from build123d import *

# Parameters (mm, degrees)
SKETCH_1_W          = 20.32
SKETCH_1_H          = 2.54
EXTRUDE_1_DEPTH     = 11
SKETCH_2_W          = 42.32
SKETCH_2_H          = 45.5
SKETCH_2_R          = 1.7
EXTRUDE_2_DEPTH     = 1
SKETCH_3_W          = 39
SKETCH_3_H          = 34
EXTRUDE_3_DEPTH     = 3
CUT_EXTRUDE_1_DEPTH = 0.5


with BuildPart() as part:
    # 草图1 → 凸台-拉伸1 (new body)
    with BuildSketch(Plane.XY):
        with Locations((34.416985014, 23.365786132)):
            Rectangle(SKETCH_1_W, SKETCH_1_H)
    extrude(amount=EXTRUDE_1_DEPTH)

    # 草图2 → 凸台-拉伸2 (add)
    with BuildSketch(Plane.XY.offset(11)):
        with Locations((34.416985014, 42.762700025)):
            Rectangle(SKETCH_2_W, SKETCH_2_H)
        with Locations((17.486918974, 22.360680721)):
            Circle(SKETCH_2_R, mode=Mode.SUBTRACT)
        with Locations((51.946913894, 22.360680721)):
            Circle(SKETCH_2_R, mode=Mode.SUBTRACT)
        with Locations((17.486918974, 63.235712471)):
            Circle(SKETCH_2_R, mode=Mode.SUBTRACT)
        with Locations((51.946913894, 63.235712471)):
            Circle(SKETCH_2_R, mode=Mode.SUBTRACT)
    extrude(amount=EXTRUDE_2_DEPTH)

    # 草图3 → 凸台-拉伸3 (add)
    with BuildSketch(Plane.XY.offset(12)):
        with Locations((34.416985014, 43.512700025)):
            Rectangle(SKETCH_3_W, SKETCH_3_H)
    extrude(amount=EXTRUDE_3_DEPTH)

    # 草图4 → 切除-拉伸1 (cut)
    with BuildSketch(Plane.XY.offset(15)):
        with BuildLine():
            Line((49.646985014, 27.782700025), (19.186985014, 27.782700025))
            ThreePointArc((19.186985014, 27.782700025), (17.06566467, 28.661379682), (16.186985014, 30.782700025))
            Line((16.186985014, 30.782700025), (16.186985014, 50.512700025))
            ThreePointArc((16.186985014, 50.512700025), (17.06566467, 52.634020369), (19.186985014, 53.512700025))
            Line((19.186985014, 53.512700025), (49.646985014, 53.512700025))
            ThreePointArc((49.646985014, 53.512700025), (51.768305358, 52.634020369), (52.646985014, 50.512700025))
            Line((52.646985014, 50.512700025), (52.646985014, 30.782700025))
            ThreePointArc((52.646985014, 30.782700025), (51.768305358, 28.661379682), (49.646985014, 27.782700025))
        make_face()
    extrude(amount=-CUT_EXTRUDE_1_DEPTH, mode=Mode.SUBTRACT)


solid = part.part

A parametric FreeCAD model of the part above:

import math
import FreeCAD as App
import Part
import Sketcher

V = App.Vector


def add_polygon(sketch, points):
    """Adds a closed chain of lines whose ends are joined by coincident constraints."""
    first, n = sketch.GeometryCount, len(points)
    for a, b in zip(points, points[1:] + points[:1]):
        sketch.addGeometry(Part.LineSegment(App.Vector(*a, 0), App.Vector(*b, 0)), False)
    for i in range(n):
        sketch.addConstraint(Sketcher.Constraint("Coincident", first + i, 2, first + (i + 1) % n, 1))

doc = App.newDocument("Part")
body = doc.addObject("PartDesign::Body", "Body")

# Sketch on XY plane
sketch1 = body.newObject("Sketcher::SketchObject", "Sketch")
sketch1.AttachmentSupport = (doc.getObject("XY_Plane"), [""])
sketch1.MapMode = "FlatFace"
add_polygon(sketch1, [(24.3, 24.6), (24.3, 22.1), (44.6, 22.1), (44.6, 24.6)])  # lines 0-3
sketch1.addConstraint([
    Sketcher.Constraint("Vertical", 0),
    Sketcher.Constraint("Horizontal", 1),
    Sketcher.Constraint("Vertical", 2),
    Sketcher.Constraint("Horizontal", 3),
    Sketcher.Constraint("DistanceX", 1, 1, 1, 2, 20.32),
    Sketcher.Constraint("DistanceY", 0, 2, 0, 1, 2.54),
    Sketcher.Constraint("DistanceX", -1, 1, 0, 2, 24.256985),
    Sketcher.Constraint("DistanceY", -1, 1, 0, 2, 22.095786),
])
pad1 = body.newObject("PartDesign::Pad", "Pad")
pad1.Profile = sketch1
pad1.Length = 11

# Sketch on XY plane
sketch2 = body.newObject("Sketcher::SketchObject", "Sketch001")
sketch2.AttachmentSupport = (doc.getObject("XY_Plane"), [""])
sketch2.MapMode = "FlatFace"
sketch2.AttachmentOffset = App.Placement(V(0, 0, 11), App.Rotation())
add_polygon(sketch2, [(13.3, 65.5), (13.3, 20), (55.6, 20), (55.6, 65.5)])  # lines 0-3
sketch2.addGeometry(Part.Circle(V(17.5, 22.4, 0), V(0, 0, 1), 1.7), False)  # 4
sketch2.addGeometry(Part.Circle(V(51.9, 22.4, 0), V(0, 0, 1), 1.7), False)  # 5
sketch2.addGeometry(Part.Circle(V(17.5, 63.2, 0), V(0, 0, 1), 1.7), False)  # 6
sketch2.addGeometry(Part.Circle(V(51.9, 63.2, 0), V(0, 0, 1), 1.7), False)  # 7
sketch2.addConstraint([
    Sketcher.Constraint("Vertical", 0),
    Sketcher.Constraint("Horizontal", 1),
    Sketcher.Constraint("Vertical", 2),
    Sketcher.Constraint("Horizontal", 3),
    Sketcher.Constraint("Equal", 4, 5),
    Sketcher.Constraint("Equal", 5, 6),
    Sketcher.Constraint("Equal", 6, 7),
    Sketcher.Constraint("Horizontal", 4, 3, 5, 3),
    Sketcher.Constraint("Horizontal", 6, 3, 7, 3),
    Sketcher.Constraint("Vertical", 4, 3, 6, 3),
    Sketcher.Constraint("Vertical", 5, 3, 7, 3),
    Sketcher.Constraint("Diameter", 4, 3.4),
    Sketcher.Constraint("DistanceY", 0, 2, 0, 1, 45.5),
    Sketcher.Constraint("DistanceX", 1, 1, 1, 2, 42.32),
    Sketcher.Constraint("DistanceY", -1, 1, 0, 2, 20.0127),
    Sketcher.Constraint("DistanceX", -1, 1, 4, 3, 17.486919),
    Sketcher.Constraint("DistanceY", -1, 1, 4, 3, 22.360681),
    Sketcher.Constraint("DistanceY", 4, 3, 6, 3, 40.875032),
    Sketcher.Constraint("DistanceX", 0, 2, 5, 3, 38.689929),
    Sketcher.Constraint("DistanceX", -1, 1, 5, 3, 51.946914),
])
pad2 = body.newObject("PartDesign::Pad", "Pad001")
pad2.Profile = sketch2
pad2.Length = 1

# Sketch on XY plane
sketch3 = body.newObject("Sketcher::SketchObject", "Sketch002")
sketch3.AttachmentSupport = (doc.getObject("XY_Plane"), [""])
sketch3.MapMode = "FlatFace"
sketch3.AttachmentOffset = App.Placement(V(0, 0, 12), App.Rotation())
add_polygon(sketch3, [(15, 61), (15, 27), (54, 27), (54, 61)])  # lines 0-3
sketch3.addConstraint([
    Sketcher.Constraint("Vertical", 0),
    Sketcher.Constraint("Horizontal", 1),
    Sketcher.Constraint("Vertical", 2),
    Sketcher.Constraint("Horizontal", 3),
    Sketcher.Constraint("DistanceX", 1, 1, 1, 2, 39.0),
    Sketcher.Constraint("DistanceY", 0, 2, 0, 1, 34.0),
    Sketcher.Constraint("DistanceY", -1, 1, 0, 2, 26.5127),
    Sketcher.Constraint("DistanceX", -1, 1, 0, 2, 14.916985),
])
pad3 = body.newObject("PartDesign::Pad", "Pad002")
pad3.Profile = sketch3
pad3.Length = 3

# Sketch on XY plane
sketch4 = body.newObject("Sketcher::SketchObject", "Sketch003")
sketch4.AttachmentSupport = (doc.getObject("XY_Plane"), [""])
sketch4.MapMode = "FlatFace"
sketch4.AttachmentOffset = App.Placement(V(0, 0, 15), App.Rotation())
sketch4.addGeometry([
    Part.LineSegment(V(19.2, 27.8, 0), V(49.6, 27.8, 0)),  # 0
    Part.ArcOfCircle(Part.Circle(V(49.6, 30.8, 0), V(0, 0, 1), 3), math.radians(-90), math.radians(0)),  # 1
    Part.LineSegment(V(52.6, 30.8, 0), V(52.6, 50.5, 0)),  # 2
    Part.ArcOfCircle(Part.Circle(V(49.6, 50.5, 0), V(0, 0, 1), 3), math.radians(0), math.radians(90)),  # 3
    Part.LineSegment(V(49.6, 53.5, 0), V(19.2, 53.5, 0)),  # 4
    Part.ArcOfCircle(Part.Circle(V(19.2, 50.5, 0), V(0, 0, 1), 3), math.radians(90), math.radians(180)),  # 5
    Part.LineSegment(V(16.2, 50.5, 0), V(16.2, 30.8, 0)),  # 6
    Part.ArcOfCircle(Part.Circle(V(19.2, 30.8, 0), V(0, 0, 1), 3), math.radians(180), math.radians(270)),  # 7
], False)
sketch4.addConstraint([
    Sketcher.Constraint("Tangent", 0, 2, 1, 1),
    Sketcher.Constraint("Tangent", 1, 2, 2, 1),
    Sketcher.Constraint("Tangent", 2, 2, 3, 1),
    Sketcher.Constraint("Tangent", 3, 2, 4, 1),
    Sketcher.Constraint("Tangent", 4, 2, 5, 1),
    Sketcher.Constraint("Tangent", 5, 2, 6, 1),
    Sketcher.Constraint("Tangent", 6, 2, 7, 1),
    Sketcher.Constraint("Tangent", 7, 2, 0, 1),
    Sketcher.Constraint("Horizontal", 0),
    Sketcher.Constraint("Vertical", 2),
    Sketcher.Constraint("Horizontal", 4),
    Sketcher.Constraint("Vertical", 6),
    Sketcher.Constraint("Equal", 1, 3),
    Sketcher.Constraint("Equal", 3, 5),
    Sketcher.Constraint("Equal", 5, 7),
    Sketcher.Constraint("Radius", 1, 3.0),
    Sketcher.Constraint("DistanceX", 0, 1, 0, 2, 30.46),
    Sketcher.Constraint("DistanceY", 2, 1, 2, 2, 19.73),
    Sketcher.Constraint("DistanceY", -1, 1, 1, 3, 30.7827),
    Sketcher.Constraint("DistanceX", -1, 1, 1, 3, 49.646985),
])
pocket1 = body.newObject("PartDesign::Pocket", "Pocket")
pocket1.Profile = sketch4
pocket1.Length = 0.5

doc.recompute()
